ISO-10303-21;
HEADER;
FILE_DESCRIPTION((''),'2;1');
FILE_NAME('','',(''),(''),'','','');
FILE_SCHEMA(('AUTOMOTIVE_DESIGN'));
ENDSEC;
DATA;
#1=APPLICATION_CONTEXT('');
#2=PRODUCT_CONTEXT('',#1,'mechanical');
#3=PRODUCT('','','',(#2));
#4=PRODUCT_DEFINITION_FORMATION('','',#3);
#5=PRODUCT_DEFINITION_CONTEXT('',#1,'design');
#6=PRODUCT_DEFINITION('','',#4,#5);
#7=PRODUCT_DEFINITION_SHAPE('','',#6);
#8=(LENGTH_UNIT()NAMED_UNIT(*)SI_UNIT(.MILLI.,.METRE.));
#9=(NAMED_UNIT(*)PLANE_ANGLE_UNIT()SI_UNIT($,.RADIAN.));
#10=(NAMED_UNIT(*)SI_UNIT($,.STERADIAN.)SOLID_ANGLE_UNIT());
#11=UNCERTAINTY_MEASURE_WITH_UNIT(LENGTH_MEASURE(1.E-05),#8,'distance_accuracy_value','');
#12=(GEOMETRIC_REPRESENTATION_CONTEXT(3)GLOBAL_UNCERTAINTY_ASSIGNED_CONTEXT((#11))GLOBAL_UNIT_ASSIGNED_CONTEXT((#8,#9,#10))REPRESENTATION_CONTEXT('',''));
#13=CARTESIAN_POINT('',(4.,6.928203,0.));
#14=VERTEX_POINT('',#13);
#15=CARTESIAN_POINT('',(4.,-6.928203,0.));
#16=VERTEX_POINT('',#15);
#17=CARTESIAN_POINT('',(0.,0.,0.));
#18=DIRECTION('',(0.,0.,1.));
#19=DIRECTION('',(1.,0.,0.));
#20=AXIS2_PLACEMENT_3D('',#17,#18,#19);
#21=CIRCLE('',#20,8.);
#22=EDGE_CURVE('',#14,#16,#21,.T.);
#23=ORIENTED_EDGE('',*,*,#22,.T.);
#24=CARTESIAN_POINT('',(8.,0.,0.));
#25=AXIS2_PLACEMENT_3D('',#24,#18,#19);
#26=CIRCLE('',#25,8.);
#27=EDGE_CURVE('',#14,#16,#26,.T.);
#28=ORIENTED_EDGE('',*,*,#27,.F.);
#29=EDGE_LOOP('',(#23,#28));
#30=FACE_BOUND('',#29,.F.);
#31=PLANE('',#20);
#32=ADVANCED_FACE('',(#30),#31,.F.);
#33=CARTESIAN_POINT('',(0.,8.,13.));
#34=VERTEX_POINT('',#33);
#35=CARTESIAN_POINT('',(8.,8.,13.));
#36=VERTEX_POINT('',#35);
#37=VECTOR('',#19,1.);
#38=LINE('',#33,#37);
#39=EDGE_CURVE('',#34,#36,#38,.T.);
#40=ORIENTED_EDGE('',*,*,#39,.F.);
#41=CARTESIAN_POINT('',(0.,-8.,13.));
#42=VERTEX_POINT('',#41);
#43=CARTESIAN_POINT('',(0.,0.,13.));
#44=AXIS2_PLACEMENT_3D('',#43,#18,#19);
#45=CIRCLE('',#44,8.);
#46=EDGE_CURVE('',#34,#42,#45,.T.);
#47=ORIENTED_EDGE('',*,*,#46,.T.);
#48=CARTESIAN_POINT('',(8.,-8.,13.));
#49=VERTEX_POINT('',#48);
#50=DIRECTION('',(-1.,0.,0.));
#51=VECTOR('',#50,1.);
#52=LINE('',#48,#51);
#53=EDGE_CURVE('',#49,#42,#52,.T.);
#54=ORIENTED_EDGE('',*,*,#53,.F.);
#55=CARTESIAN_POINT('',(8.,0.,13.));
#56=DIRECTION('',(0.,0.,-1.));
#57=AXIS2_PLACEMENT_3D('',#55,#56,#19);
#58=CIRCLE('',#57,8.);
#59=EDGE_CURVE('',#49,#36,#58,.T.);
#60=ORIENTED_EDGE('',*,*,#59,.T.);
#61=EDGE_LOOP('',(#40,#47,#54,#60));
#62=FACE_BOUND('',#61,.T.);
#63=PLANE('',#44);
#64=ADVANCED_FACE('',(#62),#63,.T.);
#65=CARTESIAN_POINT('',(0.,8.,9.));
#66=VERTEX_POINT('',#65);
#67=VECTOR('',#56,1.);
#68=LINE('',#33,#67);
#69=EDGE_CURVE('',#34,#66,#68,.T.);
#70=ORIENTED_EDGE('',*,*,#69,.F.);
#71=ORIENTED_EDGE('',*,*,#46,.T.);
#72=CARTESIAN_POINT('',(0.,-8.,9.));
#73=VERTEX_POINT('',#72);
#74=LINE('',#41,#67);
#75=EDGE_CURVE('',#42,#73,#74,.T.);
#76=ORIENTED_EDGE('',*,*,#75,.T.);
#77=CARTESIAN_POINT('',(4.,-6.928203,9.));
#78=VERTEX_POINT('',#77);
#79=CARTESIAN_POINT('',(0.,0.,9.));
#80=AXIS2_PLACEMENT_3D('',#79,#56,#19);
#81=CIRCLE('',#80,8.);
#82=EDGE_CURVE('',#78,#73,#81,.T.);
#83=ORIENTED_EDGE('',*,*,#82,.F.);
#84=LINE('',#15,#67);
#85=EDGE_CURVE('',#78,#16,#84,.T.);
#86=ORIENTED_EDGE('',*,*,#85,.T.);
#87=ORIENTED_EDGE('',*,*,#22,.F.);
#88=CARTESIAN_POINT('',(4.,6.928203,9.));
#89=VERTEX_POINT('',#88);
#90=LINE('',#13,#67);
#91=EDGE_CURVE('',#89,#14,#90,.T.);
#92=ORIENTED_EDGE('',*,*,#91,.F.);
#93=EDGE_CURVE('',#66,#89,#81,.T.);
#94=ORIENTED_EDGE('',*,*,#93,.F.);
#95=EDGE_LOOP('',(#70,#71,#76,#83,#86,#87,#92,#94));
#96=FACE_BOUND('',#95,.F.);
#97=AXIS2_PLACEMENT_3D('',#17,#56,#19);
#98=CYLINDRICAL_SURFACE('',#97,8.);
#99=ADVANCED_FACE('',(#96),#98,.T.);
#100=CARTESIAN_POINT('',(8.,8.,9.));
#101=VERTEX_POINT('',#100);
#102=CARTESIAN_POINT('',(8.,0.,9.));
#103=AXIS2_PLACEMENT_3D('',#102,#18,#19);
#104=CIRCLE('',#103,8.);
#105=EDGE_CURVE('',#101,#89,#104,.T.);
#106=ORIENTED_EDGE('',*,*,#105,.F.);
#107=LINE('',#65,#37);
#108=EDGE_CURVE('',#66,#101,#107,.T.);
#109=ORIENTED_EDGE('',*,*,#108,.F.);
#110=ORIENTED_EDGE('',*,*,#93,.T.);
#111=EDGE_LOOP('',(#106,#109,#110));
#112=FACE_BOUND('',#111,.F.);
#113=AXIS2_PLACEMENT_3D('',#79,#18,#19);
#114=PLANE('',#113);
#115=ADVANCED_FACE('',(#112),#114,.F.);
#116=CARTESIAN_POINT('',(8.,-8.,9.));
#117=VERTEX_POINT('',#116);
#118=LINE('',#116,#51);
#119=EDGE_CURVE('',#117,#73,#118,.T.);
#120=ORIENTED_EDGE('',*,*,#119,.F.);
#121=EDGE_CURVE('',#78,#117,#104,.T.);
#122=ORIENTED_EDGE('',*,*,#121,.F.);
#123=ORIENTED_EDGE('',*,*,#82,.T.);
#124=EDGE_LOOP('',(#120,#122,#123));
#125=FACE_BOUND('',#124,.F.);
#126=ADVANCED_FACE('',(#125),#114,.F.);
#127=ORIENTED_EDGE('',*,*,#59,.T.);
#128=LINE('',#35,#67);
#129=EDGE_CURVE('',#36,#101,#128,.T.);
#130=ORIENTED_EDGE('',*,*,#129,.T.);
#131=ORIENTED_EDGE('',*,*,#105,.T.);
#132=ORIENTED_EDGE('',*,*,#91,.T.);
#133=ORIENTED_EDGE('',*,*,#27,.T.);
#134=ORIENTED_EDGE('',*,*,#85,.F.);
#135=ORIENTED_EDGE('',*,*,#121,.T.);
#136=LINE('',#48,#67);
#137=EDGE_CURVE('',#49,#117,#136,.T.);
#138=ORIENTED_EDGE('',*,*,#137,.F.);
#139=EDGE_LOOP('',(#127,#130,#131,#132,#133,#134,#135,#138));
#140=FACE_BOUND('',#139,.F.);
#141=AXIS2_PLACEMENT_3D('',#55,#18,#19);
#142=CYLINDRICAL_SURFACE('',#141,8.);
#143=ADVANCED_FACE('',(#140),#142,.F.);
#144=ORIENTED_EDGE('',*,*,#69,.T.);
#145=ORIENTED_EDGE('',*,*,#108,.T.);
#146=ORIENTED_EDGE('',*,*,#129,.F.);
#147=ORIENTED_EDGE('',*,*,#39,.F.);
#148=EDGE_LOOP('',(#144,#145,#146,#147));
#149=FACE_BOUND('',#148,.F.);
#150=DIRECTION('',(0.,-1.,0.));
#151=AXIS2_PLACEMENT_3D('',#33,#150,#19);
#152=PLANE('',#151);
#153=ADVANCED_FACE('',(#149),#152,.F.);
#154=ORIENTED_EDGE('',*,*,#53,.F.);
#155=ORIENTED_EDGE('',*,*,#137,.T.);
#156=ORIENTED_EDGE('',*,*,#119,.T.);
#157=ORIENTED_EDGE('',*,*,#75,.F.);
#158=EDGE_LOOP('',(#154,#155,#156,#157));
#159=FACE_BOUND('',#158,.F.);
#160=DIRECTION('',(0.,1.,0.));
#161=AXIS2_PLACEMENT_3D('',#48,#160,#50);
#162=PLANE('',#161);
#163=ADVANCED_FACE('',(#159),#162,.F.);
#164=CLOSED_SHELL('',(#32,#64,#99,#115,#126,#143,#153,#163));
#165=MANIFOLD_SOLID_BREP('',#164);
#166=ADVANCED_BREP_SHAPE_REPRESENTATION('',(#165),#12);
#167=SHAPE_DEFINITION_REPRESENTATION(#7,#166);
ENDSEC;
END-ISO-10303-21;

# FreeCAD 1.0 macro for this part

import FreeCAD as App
import Part
import Sketcher
from FreeCAD import Vector

doc = App.newDocument("Part")
params = doc.addObject("Spreadsheet::Sheet", "Params")
for row, (alias, value) in enumerate([
    ("sketch1_diameter", "16 mm"),
    ("pad1_length", "13 mm"),
    ("sketch2_width", "8 mm"),
    ("sketch2_height", "16 mm"),
    ("pad2_length", "4 mm"),
    ("sketch3_diameter", "16 mm"),
], start=1):
    params.set(f"A{row}", alias)
    params.set(f"B{row}", "=" + value)
    params.setAlias(f"B{row}", alias)

body = doc.addObject("PartDesign::Body", "Body")

sketch1 = body.newObject("Sketcher::SketchObject", "Sketch")
sketch1.AttachmentSupport = (doc.getObject("XY_Plane"), [""])
sketch1.MapMode = "FlatFace"
sketch1.addGeometry(Part.Circle(Vector(0, 0, 0), Vector(0, 0, 1), 8), False)
sketch1.addConstraint([
    Sketcher.Constraint("Coincident", 0, 3, -1, 1),
    Sketcher.Constraint("Diameter", 0, 16.0),
])
sketch1.setExpression("Constraints[1]", "Params.sketch1_diameter")
pad1 = body.newObject("PartDesign::Pad", "Pad")
pad1.Profile = sketch1
pad1.setExpression("Length", "Params.pad1_length")

sketch2 = body.newObject("Sketcher::SketchObject", "Sketch001")
sketch2.AttachmentSupport = (doc.getObject("XY_Plane"), [""])
sketch2.MapMode = "FlatFace"
sketch2.AttachmentOffset = App.Placement(Vector(0, 0, 13), App.Rotation())
sketch2.addGeometry([
    Part.LineSegment(Vector(0, 8, 0), Vector(0, -8, 0)),
    Part.LineSegment(Vector(0, -8, 0), Vector(8, -8, 0)),
    Part.LineSegment(Vector(8, -8, 0), Vector(8, 8, 0)),
    Part.LineSegment(Vector(8, 8, 0), Vector(0, 8, 0)),
], False)
sketch2.addConstraint([
    Sketcher.Constraint("Coincident", 0, 2, 1, 1),
    Sketcher.Constraint("Coincident", 1, 2, 2, 1),
    Sketcher.Constraint("Coincident", 2, 2, 3, 1),
    Sketcher.Constraint("Coincident", 3, 2, 0, 1),
    Sketcher.Constraint("Vertical", 0),
    Sketcher.Constraint("Horizontal", 1),
    Sketcher.Constraint("Vertical", 2),
    Sketcher.Constraint("Horizontal", 3),
    Sketcher.Constraint("Symmetric", 0, 2, 3, 2, -1, 1),
    Sketcher.Constraint("DistanceX", 1, 1, 1, 2, 8.0),
    Sketcher.Constraint("DistanceY", 0, 2, 0, 1, 16.0),
])
sketch2.setExpression("Constraints[9]", "Params.sketch2_width")
sketch2.setExpression("Constraints[10]", "Params.sketch2_height")
pad2 = body.newObject("PartDesign::Pad", "Pad001")
pad2.Profile = sketch2
pad2.setExpression("Length", "Params.pad2_length")
pad2.Reversed = True

sketch3 = body.newObject("Sketcher::SketchObject", "Sketch002")
sketch3.AttachmentSupport = (doc.getObject("XY_Plane"), [""])
sketch3.MapMode = "FlatFace"
sketch3.AttachmentOffset = App.Placement(Vector(0, 0, 13), App.Rotation())
sketch3.addGeometry(Part.Circle(Vector(8, 0, 0), Vector(0, 0, 1), 8), False)
sketch3.addConstraint([
    Sketcher.Constraint("PointOnObject", 0, 3, -1),
    Sketcher.Constraint("Diameter", 0, 16.0),
    Sketcher.Constraint("DistanceX", -1, 1, 0, 3, 8.0),
])
sketch3.setExpression("Constraints[1]", "Params.sketch3_diameter")
pocket1 = body.newObject("PartDesign::Pocket", "Pocket")
pocket1.Profile = sketch3
pocket1.Type = "ThroughAll"

doc.recompute()
